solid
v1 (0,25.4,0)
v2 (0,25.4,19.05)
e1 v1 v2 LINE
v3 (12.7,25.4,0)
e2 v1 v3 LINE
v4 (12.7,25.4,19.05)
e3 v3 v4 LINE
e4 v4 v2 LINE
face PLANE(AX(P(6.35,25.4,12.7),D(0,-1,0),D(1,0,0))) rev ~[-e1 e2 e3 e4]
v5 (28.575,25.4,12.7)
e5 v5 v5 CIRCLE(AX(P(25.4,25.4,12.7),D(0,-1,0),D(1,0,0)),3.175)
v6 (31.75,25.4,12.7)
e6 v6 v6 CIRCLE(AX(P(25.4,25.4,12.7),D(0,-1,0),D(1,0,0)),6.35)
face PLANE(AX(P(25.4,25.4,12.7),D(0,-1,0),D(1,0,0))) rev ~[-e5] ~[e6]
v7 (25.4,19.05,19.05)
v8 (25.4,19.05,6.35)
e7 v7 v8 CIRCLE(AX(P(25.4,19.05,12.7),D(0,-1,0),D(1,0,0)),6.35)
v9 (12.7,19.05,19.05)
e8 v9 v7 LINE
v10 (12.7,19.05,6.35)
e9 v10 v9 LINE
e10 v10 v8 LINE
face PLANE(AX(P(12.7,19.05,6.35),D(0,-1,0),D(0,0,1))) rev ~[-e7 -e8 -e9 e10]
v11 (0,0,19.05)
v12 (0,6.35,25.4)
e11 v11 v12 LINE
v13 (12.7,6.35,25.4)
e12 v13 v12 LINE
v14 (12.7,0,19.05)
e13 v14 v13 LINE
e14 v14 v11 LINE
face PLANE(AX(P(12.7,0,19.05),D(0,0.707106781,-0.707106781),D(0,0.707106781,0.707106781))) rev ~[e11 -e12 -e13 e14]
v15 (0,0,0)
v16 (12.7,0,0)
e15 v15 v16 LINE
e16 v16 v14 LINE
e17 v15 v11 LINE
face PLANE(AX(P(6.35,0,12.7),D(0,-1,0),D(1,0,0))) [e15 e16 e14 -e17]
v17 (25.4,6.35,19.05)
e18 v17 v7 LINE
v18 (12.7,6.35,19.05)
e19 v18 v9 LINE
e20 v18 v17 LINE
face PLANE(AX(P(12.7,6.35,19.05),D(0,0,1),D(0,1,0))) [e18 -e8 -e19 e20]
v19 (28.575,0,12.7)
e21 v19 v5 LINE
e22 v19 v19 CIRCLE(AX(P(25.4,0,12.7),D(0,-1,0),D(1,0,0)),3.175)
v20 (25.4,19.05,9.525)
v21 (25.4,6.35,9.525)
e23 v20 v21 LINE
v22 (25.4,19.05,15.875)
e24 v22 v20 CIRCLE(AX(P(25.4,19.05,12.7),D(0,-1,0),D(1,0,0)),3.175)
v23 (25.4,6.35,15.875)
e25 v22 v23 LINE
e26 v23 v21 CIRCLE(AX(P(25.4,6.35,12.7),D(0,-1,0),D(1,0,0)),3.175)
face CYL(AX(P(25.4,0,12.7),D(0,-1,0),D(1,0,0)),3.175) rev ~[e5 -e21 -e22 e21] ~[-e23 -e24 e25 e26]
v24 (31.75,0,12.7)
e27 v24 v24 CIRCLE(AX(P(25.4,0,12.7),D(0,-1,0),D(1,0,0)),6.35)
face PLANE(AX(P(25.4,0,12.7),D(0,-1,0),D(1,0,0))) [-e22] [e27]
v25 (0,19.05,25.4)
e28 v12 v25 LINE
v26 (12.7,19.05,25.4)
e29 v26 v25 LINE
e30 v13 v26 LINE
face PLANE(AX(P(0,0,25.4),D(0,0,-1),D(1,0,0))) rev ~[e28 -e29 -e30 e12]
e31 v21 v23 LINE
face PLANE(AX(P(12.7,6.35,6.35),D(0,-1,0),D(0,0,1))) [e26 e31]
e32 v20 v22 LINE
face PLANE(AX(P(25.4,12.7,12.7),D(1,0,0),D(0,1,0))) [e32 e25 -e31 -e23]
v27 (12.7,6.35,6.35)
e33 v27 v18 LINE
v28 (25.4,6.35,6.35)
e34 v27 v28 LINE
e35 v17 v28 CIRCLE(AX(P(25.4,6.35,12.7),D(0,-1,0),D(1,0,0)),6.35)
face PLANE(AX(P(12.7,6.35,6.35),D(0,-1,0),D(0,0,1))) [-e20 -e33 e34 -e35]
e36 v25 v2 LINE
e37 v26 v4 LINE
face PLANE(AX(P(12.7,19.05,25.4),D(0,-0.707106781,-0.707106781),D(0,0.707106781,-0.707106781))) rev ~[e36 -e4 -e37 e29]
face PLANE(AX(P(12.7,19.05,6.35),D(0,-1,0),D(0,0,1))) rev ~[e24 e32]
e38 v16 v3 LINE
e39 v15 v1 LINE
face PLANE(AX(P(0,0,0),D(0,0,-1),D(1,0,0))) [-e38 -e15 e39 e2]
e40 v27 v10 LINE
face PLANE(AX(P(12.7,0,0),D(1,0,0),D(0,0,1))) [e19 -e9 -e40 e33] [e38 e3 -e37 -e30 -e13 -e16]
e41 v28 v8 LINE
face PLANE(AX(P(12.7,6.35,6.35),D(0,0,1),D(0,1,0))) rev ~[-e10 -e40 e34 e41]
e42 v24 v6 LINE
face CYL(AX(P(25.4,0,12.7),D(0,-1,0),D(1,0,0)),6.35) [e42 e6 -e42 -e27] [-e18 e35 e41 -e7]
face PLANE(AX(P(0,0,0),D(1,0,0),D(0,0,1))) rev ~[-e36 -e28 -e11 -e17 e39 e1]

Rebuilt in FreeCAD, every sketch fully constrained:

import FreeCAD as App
import Part
import Sketcher
Q = App.Units.Quantity


def add_polygon(sketch, points):
    """Adds a closed chain of lines whose ends are joined by coincident constraints."""
    first, n = sketch.GeometryCount, len(points)
    for a, b in zip(points, points[1:] + points[:1]):
        sketch.addGeometry(Part.LineSegment(App.Vector(*a, 0), App.Vector(*b, 0)), False)
    for i in range(n):
        sketch.addConstraint(Sketcher.Constraint("Coincident", first + i, 2, first + (i + 1) % n, 1))

doc = App.newDocument("Part")
body = doc.addObject("PartDesign::Body", "Body")

# Sketch on XZ plane
sketch1 = doc.addObject("Sketcher::SketchObject", "Sketch")
body.addObject(sketch1)
sketch1.AttachmentSupport = (doc.XZ_Plane, [""])
sketch1.MapMode = "FlatFace"
add_polygon(sketch1, [(0, 25.4), (0, 0), (12.7, 0), (12.7, 25.4)])  # lines 0-3
sketch1.addConstraint([
    Sketcher.Constraint("Vertical", 0),
    Sketcher.Constraint("Horizontal", 1),
    Sketcher.Constraint("Vertical", 2),
    Sketcher.Constraint("Horizontal", 3),
    Sketcher.Constraint("Coincident", 0, 2, -1, 1),
    Sketcher.Constraint("DistanceY", 0, 2, 0, 1, Q("1 in")),
    Sketcher.Constraint("DistanceX", 1, 1, 1, 2, Q("0.5 in")),
])
pad1 = doc.addObject("PartDesign::Pad", "Pad")
body.addObject(pad1)
pad1.Profile = sketch1
pad1.Length = Q("1 in")
pad1.Reversed = True

# Sketch on YZ plane
sketch2 = doc.addObject("Sketcher::SketchObject", "Sketch001")
body.addObject(sketch2)
sketch2.AttachmentSupport = (doc.YZ_Plane, [""])
sketch2.MapMode = "FlatFace"
sketch2.AttachmentOffset = App.Placement(App.Vector(0, 0, 0.5 * 25.4), App.Rotation())
add_polygon(sketch2, [(6.35, 25.4), (0, 25.4), (0, 19.05)])  # lines 0-2
add_polygon(sketch2, [(25.4, 25.4), (19.05, 25.4), (25.4, 19.05)])  # lines 3-5
sketch2.addConstraint([
    Sketcher.Constraint("Horizontal", 0),
    Sketcher.Constraint("Vertical", 1),
    Sketcher.Constraint("Horizontal", 3),
    Sketcher.Constraint("Vertical", 5),
    Sketcher.Constraint("PointOnObject", 0, 2, -2),
    Sketcher.Constraint("Perpendicular", 2, 4),
    Sketcher.Constraint("Horizontal", 2, 2, 3, 2),
    Sketcher.Constraint("Horizontal", 1, 2, 4, 2),
    Sketcher.Constraint("Equal", 0, 3),
    Sketcher.Constraint("DistanceY", -1, 1, 0, 2, Q("1 in")),
    Sketcher.Constraint("DistanceX", -1, 1, 4, 2, Q("1 in")),
    Sketcher.Constraint("DistanceX", 0, 2, 0, 1, Q("0.25 in")),
])
pocket1 = doc.addObject("PartDesign::Pocket", "Pocket")
body.addObject(pocket1)
pocket1.Profile = sketch2
pocket1.Length = Q("0.5 in")

# Sketch on YZ plane
sketch3 = doc.addObject("Sketcher::SketchObject", "Sketch002")
body.addObject(sketch3)
sketch3.AttachmentSupport = (doc.YZ_Plane, [""])
sketch3.MapMode = "FlatFace"
sketch3.AttachmentOffset = App.Placement(App.Vector(0, 0, 0.5 * 25.4), App.Rotation())
add_polygon(sketch3, [(6.35, 19.05), (6.35, 6.35), (19.05, 6.35), (19.05, 19.05)])  # lines 0-3
sketch3.addConstraint([
    Sketcher.Constraint("Vertical", 0),
    Sketcher.Constraint("Horizontal", 1),
    Sketcher.Constraint("Vertical", 2),
    Sketcher.Constraint("Horizontal", 3),
    Sketcher.Constraint("Equal", 3, 0),
    Sketcher.Constraint("DistanceX", 1, 1, 1, 2, Q("0.5 in")),
    Sketcher.Constraint("DistanceX", -1, 1, 0, 2, Q("0.25 in")),
    Sketcher.Constraint("DistanceY", -1, 1, 0, 2, Q("0.25 in")),
])
pad2 = doc.addObject("PartDesign::Pad", "Pad001")
body.addObject(pad2)
pad2.Profile = sketch3
pad2.Length = Q("0.5 in")

# Sketch on XZ plane
sketch4 = doc.addObject("Sketcher::SketchObject", "Sketch003")
body.addObject(sketch4)
sketch4.AttachmentSupport = (doc.XZ_Plane, [""])
sketch4.MapMode = "FlatFace"
sketch4.addGeometry([
    Part.Circle(App.Vector(25.4, 12.7, 0), App.Vector(0, 0, 1), 6.35),
    Part.Circle(App.Vector(25.4, 12.7, 0), App.Vector(0, 0, 1), 3.175),
], False)
sketch4.addConstraint([
    Sketcher.Constraint("Coincident", 1, 3, 0, 3),
    Sketcher.Constraint("Diameter", 0, Q("0.5 in")),
    Sketcher.Constraint("Diameter", 1, Q("0.25 in")),
    Sketcher.Constraint("DistanceX", -1, 1, 0, 3, Q("1 in")),
    Sketcher.Constraint("DistanceY", -1, 1, 0, 3, Q("0.5 in")),
])
pad3 = doc.addObject("PartDesign::Pad", "Pad002")
body.addObject(pad3)
pad3.Profile = sketch4
pad3.Length = Q("1 in")
pad3.Reversed = True

doc.recompute()
